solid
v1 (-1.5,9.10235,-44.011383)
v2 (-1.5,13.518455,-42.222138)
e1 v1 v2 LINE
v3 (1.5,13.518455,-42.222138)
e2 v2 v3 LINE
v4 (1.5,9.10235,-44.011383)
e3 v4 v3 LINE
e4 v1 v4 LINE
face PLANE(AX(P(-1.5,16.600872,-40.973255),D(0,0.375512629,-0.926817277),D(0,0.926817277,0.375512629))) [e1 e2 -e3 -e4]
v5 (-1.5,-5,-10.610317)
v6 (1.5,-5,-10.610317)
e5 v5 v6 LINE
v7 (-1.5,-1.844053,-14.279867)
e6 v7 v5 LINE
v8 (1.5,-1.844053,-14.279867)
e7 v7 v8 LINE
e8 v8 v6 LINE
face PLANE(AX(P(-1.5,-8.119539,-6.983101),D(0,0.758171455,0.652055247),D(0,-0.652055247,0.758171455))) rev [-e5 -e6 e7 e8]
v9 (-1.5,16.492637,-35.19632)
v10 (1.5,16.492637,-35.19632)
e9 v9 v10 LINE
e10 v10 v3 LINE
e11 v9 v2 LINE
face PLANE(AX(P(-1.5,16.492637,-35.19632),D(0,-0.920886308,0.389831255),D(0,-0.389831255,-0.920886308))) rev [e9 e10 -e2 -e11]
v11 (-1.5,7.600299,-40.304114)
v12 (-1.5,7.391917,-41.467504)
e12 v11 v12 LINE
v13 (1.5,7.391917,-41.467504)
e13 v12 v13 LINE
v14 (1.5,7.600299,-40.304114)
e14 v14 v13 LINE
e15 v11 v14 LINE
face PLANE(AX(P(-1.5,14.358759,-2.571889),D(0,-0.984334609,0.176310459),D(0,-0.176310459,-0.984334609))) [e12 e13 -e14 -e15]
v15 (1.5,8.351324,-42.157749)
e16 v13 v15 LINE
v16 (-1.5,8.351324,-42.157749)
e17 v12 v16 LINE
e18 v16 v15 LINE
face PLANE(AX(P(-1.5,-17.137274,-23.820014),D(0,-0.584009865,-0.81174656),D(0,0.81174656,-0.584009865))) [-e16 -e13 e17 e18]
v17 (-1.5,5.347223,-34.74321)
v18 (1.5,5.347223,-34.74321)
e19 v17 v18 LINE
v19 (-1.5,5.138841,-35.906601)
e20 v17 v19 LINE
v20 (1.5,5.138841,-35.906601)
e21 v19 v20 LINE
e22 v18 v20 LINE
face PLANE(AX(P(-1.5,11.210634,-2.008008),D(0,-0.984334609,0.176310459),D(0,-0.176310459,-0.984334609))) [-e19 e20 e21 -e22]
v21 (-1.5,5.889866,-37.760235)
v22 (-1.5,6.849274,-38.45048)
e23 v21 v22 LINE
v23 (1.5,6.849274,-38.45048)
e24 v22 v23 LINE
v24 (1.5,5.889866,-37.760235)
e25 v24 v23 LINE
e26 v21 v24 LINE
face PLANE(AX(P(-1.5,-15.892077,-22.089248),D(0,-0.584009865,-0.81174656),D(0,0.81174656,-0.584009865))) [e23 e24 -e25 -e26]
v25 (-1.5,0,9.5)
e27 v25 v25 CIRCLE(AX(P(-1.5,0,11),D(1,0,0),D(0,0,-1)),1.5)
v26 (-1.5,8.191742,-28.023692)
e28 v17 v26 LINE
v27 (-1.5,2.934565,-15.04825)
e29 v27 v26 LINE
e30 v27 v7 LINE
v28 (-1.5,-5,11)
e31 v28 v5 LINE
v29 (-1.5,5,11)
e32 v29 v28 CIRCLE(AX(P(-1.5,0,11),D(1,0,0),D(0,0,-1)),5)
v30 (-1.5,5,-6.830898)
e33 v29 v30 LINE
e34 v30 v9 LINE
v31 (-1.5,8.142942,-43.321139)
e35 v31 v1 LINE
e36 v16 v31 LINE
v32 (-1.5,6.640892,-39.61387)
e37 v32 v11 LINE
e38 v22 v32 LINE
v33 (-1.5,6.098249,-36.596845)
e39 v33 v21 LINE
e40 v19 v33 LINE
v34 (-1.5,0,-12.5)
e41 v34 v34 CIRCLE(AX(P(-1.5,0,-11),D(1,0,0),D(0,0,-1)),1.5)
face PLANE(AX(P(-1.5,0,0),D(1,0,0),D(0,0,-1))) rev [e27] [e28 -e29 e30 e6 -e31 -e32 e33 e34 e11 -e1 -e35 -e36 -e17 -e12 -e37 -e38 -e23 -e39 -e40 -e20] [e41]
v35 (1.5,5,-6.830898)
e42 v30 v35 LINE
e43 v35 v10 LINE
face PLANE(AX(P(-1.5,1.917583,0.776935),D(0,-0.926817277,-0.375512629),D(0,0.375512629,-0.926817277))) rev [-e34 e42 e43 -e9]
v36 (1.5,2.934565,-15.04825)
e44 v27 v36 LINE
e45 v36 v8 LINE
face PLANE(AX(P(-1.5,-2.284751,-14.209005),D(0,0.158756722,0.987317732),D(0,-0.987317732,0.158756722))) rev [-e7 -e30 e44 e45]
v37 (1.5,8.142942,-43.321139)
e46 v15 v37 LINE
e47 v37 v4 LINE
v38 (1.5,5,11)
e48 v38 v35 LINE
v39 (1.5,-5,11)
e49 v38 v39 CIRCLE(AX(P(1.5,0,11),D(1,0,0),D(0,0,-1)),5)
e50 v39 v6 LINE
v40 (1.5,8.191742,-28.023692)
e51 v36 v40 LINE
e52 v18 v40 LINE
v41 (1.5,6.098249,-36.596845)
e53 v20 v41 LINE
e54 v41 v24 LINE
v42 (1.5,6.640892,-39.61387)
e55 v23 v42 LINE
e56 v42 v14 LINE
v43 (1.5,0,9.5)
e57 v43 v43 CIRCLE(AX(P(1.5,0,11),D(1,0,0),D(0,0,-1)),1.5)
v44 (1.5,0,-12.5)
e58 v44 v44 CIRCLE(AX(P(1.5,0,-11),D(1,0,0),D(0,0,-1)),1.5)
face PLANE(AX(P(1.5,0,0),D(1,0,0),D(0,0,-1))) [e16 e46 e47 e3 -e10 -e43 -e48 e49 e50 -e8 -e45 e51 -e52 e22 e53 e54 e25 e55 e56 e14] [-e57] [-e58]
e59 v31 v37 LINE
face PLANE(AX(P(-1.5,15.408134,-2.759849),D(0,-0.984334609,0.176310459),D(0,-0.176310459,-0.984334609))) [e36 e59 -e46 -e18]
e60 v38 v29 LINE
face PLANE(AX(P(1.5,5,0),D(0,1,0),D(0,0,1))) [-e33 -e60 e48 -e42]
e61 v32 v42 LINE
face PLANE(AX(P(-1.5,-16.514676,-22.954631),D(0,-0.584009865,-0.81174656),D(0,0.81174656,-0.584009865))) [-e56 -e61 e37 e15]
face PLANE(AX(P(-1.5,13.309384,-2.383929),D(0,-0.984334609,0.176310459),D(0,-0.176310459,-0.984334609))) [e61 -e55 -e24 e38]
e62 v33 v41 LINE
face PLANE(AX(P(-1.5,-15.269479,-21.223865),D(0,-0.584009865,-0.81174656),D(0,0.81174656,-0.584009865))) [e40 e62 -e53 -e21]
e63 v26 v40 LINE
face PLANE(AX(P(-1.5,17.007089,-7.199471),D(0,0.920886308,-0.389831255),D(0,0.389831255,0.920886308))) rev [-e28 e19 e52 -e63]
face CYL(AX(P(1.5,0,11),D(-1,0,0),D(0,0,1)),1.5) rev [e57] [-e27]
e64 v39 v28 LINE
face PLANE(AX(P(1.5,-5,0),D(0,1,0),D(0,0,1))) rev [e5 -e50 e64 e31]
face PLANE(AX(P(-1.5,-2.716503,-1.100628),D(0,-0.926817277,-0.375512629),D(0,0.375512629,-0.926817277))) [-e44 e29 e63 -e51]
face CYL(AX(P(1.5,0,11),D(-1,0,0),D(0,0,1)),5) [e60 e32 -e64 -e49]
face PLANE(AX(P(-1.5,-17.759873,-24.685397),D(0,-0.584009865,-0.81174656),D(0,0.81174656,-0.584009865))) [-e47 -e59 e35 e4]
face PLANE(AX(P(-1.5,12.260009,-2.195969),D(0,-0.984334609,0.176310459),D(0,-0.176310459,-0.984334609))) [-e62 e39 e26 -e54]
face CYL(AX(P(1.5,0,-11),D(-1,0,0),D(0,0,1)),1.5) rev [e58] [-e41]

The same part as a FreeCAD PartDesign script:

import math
import FreeCAD as App
import Part
import Sketcher
from FreeCAD import Vector
Q = App.Units.Quantity


def add_polygon(sketch, points):
    """Adds a closed chain of lines whose ends are joined by coincident constraints."""
    first, n = sketch.GeometryCount, len(points)
    for a, b in zip(points, points[1:] + points[:1]):
        sketch.addGeometry(Part.LineSegment(App.Vector(*a, 0), App.Vector(*b, 0)), False)
    for i in range(n):
        sketch.addConstraint(Sketcher.Constraint("Coincident", first + i, 2, first + (i + 1) % n, 1))

doc = App.newDocument("Part")
body = doc.addObject("PartDesign::Body", "Body")

# Sketch on YZ plane
sketch1 = body.newObject("Sketcher::SketchObject", "Sketch")
sketch1.AttachmentSupport = (doc.getObject("YZ_Plane"), [""])
sketch1.MapMode = "FlatFace"
sketch1.addGeometry(Part.LineSegment(Vector(-5, 11, 0), Vector(-5, -11, 0)), False)
sketch1.addGeometry(Part.ArcOfCircle(Part.Circle(Vector(0, -11, 0), Vector(0, 0, 1), 5), math.radians(180), math.radians(360)), False)
sketch1.addGeometry(Part.LineSegment(Vector(5, -11, 0), Vector(5, 11, 0)), False)
sketch1.addGeometry(Part.ArcOfCircle(Part.Circle(Vector(0, 11, 0), Vector(0, 0, 1), 5), math.radians(0), math.radians(180)), False)
sketch1.addGeometry(Part.Circle(Vector(0, 11, 0), Vector(0, 0, 1), 1.5), False)
sketch1.addGeometry(Part.Circle(Vector(0, -11, 0), Vector(0, 0, 1), 1.5), False)
sketch1.addConstraint(Sketcher.Constraint("Tangent", 0, 2, 1, 1))
sketch1.addConstraint(Sketcher.Constraint("Tangent", 1, 2, 2, 1))
sketch1.addConstraint(Sketcher.Constraint("Tangent", 2, 2, 3, 1))
sketch1.addConstraint(Sketcher.Constraint("Tangent", 3, 2, 0, 1))
sketch1.addConstraint(Sketcher.Constraint("Vertical", 0))
sketch1.addConstraint(Sketcher.Constraint("Vertical", 2))
sketch1.addConstraint(Sketcher.Constraint("Coincident", 4, 3, 3, 3))
sketch1.addConstraint(Sketcher.Constraint("Coincident", 5, 3, 1, 3))
sketch1.addConstraint(Sketcher.Constraint("Equal", 4, 5))
sketch1.addConstraint(Sketcher.Constraint("Symmetric", 1, 3, 3, 3, -1, 1))
sketch1.addConstraint(Sketcher.Constraint("Diameter", 4, Q("3 mm")))
sketch1.addConstraint(Sketcher.Constraint("Radius", 1, Q("5 mm")))
sketch1.addConstraint(Sketcher.Constraint("DistanceY", 0, 2, 0, 1, Q("22 mm")))
pad1 = body.newObject("PartDesign::Pad", "Pad")
pad1.Profile = sketch1
pad1.Length = 3
pad1.Midplane = True

# Sketch on YZ plane
sketch2 = body.newObject("Sketcher::SketchObject", "Sketch001")
sketch2.AttachmentSupport = (doc.getObject("YZ_Plane"), [""])
sketch2.MapMode = "FlatFace"
sketch2.AttachmentOffset = App.Placement(Vector(0, 0, 1.5), App.Rotation())
sketch2.addGeometry(Part.LineSegment(Vector(5.347223, -34.74321, 0), Vector(4.763328, -34.979783, 0)), False)
sketch2.addGeometry(Part.LineSegment(Vector(4.763328, -34.979783, 0), Vector(8.518455, -44.247956, 0)), False)
sketch2.addGeometry(Part.LineSegment(Vector(8.518455, -44.247956, 0), Vector(18.518455, -40.19632, 0)), False)
sketch2.addGeometry(Part.LineSegment(Vector(18.518455, -40.19632, 0), Vector(5, -6.830898, 0)), False)
sketch2.addGeometry(Part.LineSegment(Vector(5, -6.830898, 0), Vector(5, -11, 0)), False)
sketch2.addGeometry(Part.ArcOfCircle(Part.Circle(Vector(0, -11, 0), Vector(0, 0, 1), 5), math.radians(-54.061747), math.radians(0)), False)
sketch2.addGeometry(Part.LineSegment(Vector(2.934565, -15.04825, 0), Vector(8.191742, -28.023692, 0)), False)
sketch2.addGeometry(Part.LineSegment(Vector(8.191742, -28.023692, 0), Vector(5.347223, -34.74321, 0)), False)
sketch2.addConstraint(Sketcher.Constraint("Coincident", 0, 2, 1, 1))
sketch2.addConstraint(Sketcher.Constraint("Coincident", 1, 2, 2, 1))
sketch2.addConstraint(Sketcher.Constraint("Coincident", 2, 2, 3, 1))
sketch2.addConstraint(Sketcher.Constraint("Coincident", 3, 2, 4, 1))
sketch2.addConstraint(Sketcher.Constraint("Tangent", 4, 2, 5, 2))
sketch2.addConstraint(Sketcher.Constraint("Coincident", 5, 1, 6, 1))
sketch2.addConstraint(Sketcher.Constraint("Coincident", 6, 2, 7, 1))
sketch2.addConstraint(Sketcher.Constraint("Coincident", 7, 2, 0, 1))
sketch2.addConstraint(Sketcher.Constraint("Vertical", 4))
sketch2.addConstraint(Sketcher.Constraint("PointOnObject", 5, 3, -2))
sketch2.addConstraint(Sketcher.Constraint("Perpendicular", 0, 1))
sketch2.addConstraint(Sketcher.Constraint("Perpendicular", 1, 2))
sketch2.addConstraint(Sketcher.Constraint("Perpendicular", 2, 3))
sketch2.addConstraint(Sketcher.Constraint("Parallel", 3, 6))
sketch2.addConstraint(Sketcher.Constraint("Radius", 5, Q("5 mm")))
sketch2.addConstraint(Sketcher.Constraint("Distance", 1, Q("10 mm")))
sketch2.addConstraint(Sketcher.Constraint("Distance", 3, Q("36 mm")))
sketch2.addConstraint(Sketcher.Constraint("Distance", 6, Q("14 mm")))
sketch2.addConstraint(Sketcher.Constraint("DistanceY", 5, 3, -1, 1, Q("11 mm")))
sketch2.addConstraint(Sketcher.Constraint("DistanceX", 1, 2, 2, 2, Q("10 mm")))
sketch2.addConstraint(Sketcher.Constraint("Distance", 0, Q("0.63 mm")))
sketch2.addConstraint(Sketcher.Constraint("DistanceY", 4, 2, 4, 1, Q("4.169102 mm")))
sketch2.addConstraint(Sketcher.Constraint("DistanceX", -1, 1, 0, 2, Q("4.763328 mm")))
sketch2.addConstraint(Sketcher.Constraint("DistanceY", 5, 1, -1, 1, Q("15.04825 mm")))
pad2 = body.newObject("PartDesign::Pad", "Pad001")
pad2.Profile = sketch2
pad2.Length = 3
pad2.Reversed = True

# Sketch on YZ plane
sketch3 = body.newObject("Sketcher::SketchObject", "Sketch002")
sketch3.AttachmentSupport = (doc.getObject("YZ_Plane"), [""])
sketch3.MapMode = "FlatFace"
sketch3.AttachmentOffset = App.Placement(Vector(0, 0, 1.5), App.Rotation())
add_polygon(sketch3, [(18.518455, -40.19632), (16.492637, -35.19632), (13.518455, -42.222138)])  # lines 0-2
sketch3.addConstraint(Sketcher.Constraint("Perpendicular", 0, 2))
sketch3.addConstraint(Sketcher.Constraint("Equal", 0, 2))
sketch3.addConstraint(Sketcher.Constraint("DistanceY", 2, 2, 0, 2, Q("5 mm")))
sketch3.addConstraint(Sketcher.Constraint("Distance", 1, Q("7.629409 mm")))
sketch3.addConstraint(Sketcher.Constraint("DistanceY", 0, 2, -1, 1, Q("35.19632 mm")))
sketch3.addConstraint(Sketcher.Constraint("DistanceX", -1, 1, 0, 2, Q("16.492637 mm")))
pocket1 = body.newObject("PartDesign::Pocket", "Pocket")
pocket1.Profile = sketch3
pocket1.Length = 3

# Sketch on YZ plane
sketch4 = body.newObject("Sketcher::SketchObject", "Sketch003")
sketch4.AttachmentSupport = (doc.getObject("YZ_Plane"), [""])
sketch4.MapMode = "FlatFace"
sketch4.AttachmentOffset = App.Placement(Vector(0, 0, 1.5), App.Rotation())
add_polygon(sketch4, [(6.098249, -36.596845), (5.138841, -35.906601), (5.889866, -37.760235)])  # lines 0-2
add_polygon(sketch4, [(5.138841, -35.906601), (5.347223, -34.74321), (4.763328, -34.979783)])  # lines 3-5
add_polygon(sketch4, [(6.849274, -38.45048), (5.889866, -37.760235), (6.640892, -39.61387)])  # lines 6-8
add_polygon(sketch4, [(7.600299, -40.304114), (6.640892, -39.61387), (7.391917, -41.467504)])  # lines 9-11
add_polygon(sketch4, [(8.351324, -42.157749), (7.391917, -41.467504), (8.142942, -43.321139)])  # lines 12-14
add_polygon(sketch4, [(9.10235, -44.011383), (8.142942, -43.321139), (8.518455, -44.247956)])  # lines 15-17
sketch4.addGeometry(Part.ArcOfCircle(Part.Circle(Vector(0, -11, 0), Vector(0, 0, 1), 5), math.radians(180), math.radians(305.938253)), False)  # 18
sketch4.addGeometry(Part.LineSegment(Vector(2.934565, -15.04825, 0), Vector(-1.844053, -14.279867, 0)), False)  # 19
sketch4.addGeometry(Part.LineSegment(Vector(-1.844053, -14.279867, 0), Vector(-5, -10.610317, 0)), False)  # 20
sketch4.addGeometry(Part.LineSegment(Vector(-5, -10.610317, 0), Vector(-5, -11, 0)), False)  # 21
sketch4.addConstraint(Sketcher.Constraint("Coincident", 18, 2, 19, 1))
sketch4.addConstraint(Sketcher.Constraint("Coincident", 19, 2, 20, 1))
sketch4.addConstraint(Sketcher.Constraint("Coincident", 20, 2, 21, 1))
sketch4.addConstraint(Sketcher.Constraint("Tangent", 21, 2, 18, 1))
sketch4.addConstraint(Sketcher.Constraint("Vertical", 21))
sketch4.addConstraint(Sketcher.Constraint("Coincident", 5, 2, 0, 2))
sketch4.addConstraint(Sketcher.Constraint("Coincident", 6, 2, 1, 2))
sketch4.addConstraint(Sketcher.Constraint("Coincident", 9, 2, 7, 2))
sketch4.addConstraint(Sketcher.Constraint("Coincident", 12, 2, 10, 2))
sketch4.addConstraint(Sketcher.Constraint("Coincident", 15, 2, 13, 2))
sketch4.addConstraint(Sketcher.Constraint("PointOnObject", 18, 3, -2))
sketch4.addConstraint(Sketcher.Constraint("Parallel", 2, 3))
sketch4.addConstraint(Sketcher.Constraint("Perpendicular", 1, 4))
sketch4.addConstraint(Sketcher.Constraint("Perpendicular", 4, 5))
sketch4.addConstraint(Sketcher.Constraint("Parallel", 0, 6))
sketch4.addConstraint(Sketcher.Constraint("Parallel", 5, 7))
sketch4.addConstraint(Sketcher.Constraint("Parallel", 3, 8))
sketch4.addConstraint(Sketcher.Constraint("Parallel", 6, 9))
sketch4.addConstraint(Sketcher.Constraint("Parallel", 7, 10))
sketch4.addConstraint(Sketcher.Constraint("Parallel", 8, 11))
sketch4.addConstraint(Sketcher.Constraint("Parallel", 9, 12))
sketch4.addConstraint(Sketcher.Constraint("Parallel", 10, 13))
sketch4.addConstraint(Sketcher.Constraint("Parallel", 11, 14))
sketch4.addConstraint(Sketcher.Constraint("Parallel", 12, 15))
sketch4.addConstraint(Sketcher.Constraint("Parallel", 13, 16))
sketch4.addConstraint(Sketcher.Constraint("Perpendicular", 16, 17))
sketch4.addConstraint(Sketcher.Constraint("Equal", 0, 2))
sketch4.addConstraint(Sketcher.Constraint("Equal", 2, 3))
sketch4.addConstraint(Sketcher.Constraint("Equal", 3, 6))
sketch4.addConstraint(Sketcher.Constraint("Equal", 8, 9))
sketch4.addConstraint(Sketcher.Constraint("Equal", 11, 12))
sketch4.addConstraint(Sketcher.Constraint("Equal", 14, 15))
sketch4.addConstraint(Sketcher.Constraint("Equal", 19, 20))
sketch4.addConstraint(Sketcher.Constraint("Radius", 18, Q("5 mm")))
sketch4.addConstraint(Sketcher.Constraint("Distance", 1, Q("2 mm")))
sketch4.addConstraint(Sketcher.Constraint("DistanceY", 18, 3, -1, 1, Q("11 mm")))
sketch4.addConstraint(Sketcher.Constraint("Distance", 4, Q("0.63 mm")))
sketch4.addConstraint(Sketcher.Constraint("Distance", 19, Q("4.84 mm")))
sketch4.addConstraint(Sketcher.Constraint("DistanceY", 0, 2, -1, 1, Q("35.906601 mm")))
sketch4.addConstraint(Sketcher.Constraint("DistanceX", -1, 1, 11, 2, Q("7.600299 mm")))
sketch4.addConstraint(Sketcher.Constraint("DistanceY", 21, 2, 21, 1, Q("0.389683 mm")))
sketch4.addConstraint(Sketcher.Constraint("DistanceX", -1, 1, 0, 2, Q("5.138841 mm")))
sketch4.addConstraint(Sketcher.Constraint("DistanceY", 18, 2, -1, 1, Q("15.04825 mm")))
pocket2 = body.newObject("PartDesign::Pocket", "Pocket001")
pocket2.Profile = sketch4
pocket2.Length = 3

doc.recompute()
